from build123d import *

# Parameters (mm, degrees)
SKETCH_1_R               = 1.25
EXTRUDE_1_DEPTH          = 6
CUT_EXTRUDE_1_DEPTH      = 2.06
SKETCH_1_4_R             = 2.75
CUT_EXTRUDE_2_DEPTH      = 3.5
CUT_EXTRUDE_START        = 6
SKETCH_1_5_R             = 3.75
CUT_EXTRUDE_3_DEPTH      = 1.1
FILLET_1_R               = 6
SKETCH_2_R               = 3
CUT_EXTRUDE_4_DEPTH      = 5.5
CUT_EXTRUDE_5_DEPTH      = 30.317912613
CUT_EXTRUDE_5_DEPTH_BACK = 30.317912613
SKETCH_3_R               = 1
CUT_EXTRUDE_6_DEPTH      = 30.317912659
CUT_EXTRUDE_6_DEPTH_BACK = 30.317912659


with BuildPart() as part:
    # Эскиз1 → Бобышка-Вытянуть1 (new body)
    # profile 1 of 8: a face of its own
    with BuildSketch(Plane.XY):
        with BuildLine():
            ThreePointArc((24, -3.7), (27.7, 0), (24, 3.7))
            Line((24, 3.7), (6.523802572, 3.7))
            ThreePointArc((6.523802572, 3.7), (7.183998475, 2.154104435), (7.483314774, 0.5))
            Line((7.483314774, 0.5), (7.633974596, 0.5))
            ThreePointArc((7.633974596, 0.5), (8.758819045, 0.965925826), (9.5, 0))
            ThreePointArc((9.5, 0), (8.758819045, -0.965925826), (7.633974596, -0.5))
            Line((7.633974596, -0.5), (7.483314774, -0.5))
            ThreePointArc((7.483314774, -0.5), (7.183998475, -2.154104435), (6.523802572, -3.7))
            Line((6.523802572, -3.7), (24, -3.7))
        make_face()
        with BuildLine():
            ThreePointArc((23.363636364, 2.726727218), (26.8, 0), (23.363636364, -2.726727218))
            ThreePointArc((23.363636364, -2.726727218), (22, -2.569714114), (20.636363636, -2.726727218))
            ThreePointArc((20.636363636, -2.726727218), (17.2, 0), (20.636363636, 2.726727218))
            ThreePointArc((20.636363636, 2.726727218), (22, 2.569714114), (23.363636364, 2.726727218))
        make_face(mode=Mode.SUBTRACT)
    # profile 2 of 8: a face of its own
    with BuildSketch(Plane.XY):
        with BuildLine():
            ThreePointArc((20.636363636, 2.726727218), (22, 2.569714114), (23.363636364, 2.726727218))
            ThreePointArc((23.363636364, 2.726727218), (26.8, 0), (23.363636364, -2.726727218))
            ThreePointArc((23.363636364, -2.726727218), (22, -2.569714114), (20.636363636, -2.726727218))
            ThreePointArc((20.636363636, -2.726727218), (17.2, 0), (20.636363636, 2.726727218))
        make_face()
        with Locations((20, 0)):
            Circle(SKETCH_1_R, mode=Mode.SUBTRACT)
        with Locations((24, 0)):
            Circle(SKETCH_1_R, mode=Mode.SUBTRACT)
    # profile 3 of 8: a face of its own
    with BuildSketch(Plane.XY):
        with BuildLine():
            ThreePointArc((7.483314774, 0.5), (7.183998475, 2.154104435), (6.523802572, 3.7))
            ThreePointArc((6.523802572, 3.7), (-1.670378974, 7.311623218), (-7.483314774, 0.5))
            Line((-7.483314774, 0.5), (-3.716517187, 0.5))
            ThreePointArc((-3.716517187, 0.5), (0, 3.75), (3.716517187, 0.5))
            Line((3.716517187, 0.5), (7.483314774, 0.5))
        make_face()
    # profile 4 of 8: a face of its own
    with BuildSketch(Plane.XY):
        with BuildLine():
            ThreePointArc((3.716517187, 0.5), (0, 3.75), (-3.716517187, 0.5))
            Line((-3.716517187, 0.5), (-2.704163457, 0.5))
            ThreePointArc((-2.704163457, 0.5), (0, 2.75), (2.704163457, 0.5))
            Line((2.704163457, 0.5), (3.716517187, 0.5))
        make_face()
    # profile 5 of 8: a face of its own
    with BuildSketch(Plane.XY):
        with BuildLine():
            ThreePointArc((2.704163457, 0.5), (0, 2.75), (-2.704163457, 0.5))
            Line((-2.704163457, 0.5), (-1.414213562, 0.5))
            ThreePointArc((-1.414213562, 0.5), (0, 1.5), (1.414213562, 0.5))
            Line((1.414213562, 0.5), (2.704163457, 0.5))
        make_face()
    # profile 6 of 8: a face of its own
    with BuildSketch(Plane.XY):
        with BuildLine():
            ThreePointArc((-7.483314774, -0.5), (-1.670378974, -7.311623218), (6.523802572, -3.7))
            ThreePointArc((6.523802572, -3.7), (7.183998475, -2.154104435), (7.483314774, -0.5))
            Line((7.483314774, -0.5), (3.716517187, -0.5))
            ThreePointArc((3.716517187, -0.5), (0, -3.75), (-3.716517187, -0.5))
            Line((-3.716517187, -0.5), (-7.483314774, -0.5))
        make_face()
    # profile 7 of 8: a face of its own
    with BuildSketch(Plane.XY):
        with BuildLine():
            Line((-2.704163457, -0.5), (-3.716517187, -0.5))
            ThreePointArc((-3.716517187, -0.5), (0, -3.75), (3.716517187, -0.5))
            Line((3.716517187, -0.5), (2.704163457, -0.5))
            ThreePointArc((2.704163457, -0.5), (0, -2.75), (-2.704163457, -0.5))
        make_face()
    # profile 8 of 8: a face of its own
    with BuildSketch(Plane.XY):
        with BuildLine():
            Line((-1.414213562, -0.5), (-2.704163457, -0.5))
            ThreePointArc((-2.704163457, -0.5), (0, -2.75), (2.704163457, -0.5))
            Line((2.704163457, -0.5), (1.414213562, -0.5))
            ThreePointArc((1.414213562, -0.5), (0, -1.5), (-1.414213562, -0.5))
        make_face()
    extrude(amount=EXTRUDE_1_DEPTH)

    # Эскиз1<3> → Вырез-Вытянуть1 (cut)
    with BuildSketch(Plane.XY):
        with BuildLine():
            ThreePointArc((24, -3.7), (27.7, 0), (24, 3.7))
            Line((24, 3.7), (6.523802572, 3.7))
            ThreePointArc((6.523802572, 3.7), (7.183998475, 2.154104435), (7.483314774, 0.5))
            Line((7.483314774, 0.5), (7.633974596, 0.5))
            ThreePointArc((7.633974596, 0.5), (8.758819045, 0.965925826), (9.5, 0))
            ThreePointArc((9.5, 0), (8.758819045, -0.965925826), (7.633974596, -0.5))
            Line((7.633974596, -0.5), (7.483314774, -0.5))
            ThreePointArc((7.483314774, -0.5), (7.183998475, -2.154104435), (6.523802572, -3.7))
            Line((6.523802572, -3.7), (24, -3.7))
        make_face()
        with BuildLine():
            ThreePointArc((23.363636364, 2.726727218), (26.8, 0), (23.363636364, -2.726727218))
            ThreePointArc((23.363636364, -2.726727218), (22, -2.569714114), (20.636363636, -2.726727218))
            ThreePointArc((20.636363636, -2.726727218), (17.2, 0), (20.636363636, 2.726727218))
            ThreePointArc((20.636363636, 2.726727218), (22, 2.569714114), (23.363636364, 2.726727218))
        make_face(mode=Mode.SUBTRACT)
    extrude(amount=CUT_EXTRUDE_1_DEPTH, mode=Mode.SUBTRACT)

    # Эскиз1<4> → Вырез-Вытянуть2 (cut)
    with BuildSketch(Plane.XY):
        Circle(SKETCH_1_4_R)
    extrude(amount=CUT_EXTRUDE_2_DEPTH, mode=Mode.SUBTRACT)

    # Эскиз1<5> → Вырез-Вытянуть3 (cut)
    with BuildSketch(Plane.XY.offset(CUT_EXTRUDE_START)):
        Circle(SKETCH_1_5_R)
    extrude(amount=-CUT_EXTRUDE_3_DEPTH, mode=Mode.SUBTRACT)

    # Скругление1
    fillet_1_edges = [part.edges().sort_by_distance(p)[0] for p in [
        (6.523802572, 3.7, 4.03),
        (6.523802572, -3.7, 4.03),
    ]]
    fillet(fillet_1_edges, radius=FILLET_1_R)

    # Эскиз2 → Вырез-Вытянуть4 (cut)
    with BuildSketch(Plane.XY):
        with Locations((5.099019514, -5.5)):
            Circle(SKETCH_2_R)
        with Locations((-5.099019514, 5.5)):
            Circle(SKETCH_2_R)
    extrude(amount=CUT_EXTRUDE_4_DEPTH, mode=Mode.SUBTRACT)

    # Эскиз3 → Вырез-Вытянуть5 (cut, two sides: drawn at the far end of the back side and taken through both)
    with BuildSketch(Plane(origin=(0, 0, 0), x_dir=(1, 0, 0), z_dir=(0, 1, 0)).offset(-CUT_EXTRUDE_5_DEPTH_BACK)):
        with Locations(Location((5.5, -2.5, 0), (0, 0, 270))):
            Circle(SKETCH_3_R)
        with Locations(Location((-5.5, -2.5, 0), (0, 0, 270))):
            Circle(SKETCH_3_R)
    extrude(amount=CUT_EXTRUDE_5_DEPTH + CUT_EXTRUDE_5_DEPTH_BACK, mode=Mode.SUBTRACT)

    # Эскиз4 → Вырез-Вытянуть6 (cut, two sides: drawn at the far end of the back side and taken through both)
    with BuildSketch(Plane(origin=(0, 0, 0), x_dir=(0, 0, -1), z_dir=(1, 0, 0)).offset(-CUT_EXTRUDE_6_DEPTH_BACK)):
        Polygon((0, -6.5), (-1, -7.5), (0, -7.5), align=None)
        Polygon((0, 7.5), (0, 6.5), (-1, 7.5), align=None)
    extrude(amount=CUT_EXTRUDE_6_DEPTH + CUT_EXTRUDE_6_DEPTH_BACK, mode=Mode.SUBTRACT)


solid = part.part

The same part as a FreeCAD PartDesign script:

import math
import FreeCAD as App
import Part
import Sketcher


def edges_at(feature, points):
    """Names of the edges that pass closest to the given points."""
    edges = feature.Shape.Edges
    near = lambda p: min(range(len(edges)), key=lambda i: edges[i].distToShape(Part.Vertex(*p))[0])
    return sorted({f"Edge{near(p) + 1}" for p in points})


def add_polygon(sketch, points):
    """Adds a closed chain of lines whose ends are joined by coincident constraints."""
    first, n = sketch.GeometryCount, len(points)
    for a, b in zip(points, points[1:] + points[:1]):
        sketch.addGeometry(Part.LineSegment(App.Vector(*a, 0), App.Vector(*b, 0)), False)
    for i in range(n):
        sketch.addConstraint(Sketcher.Constraint("Coincident", first + i, 2, first + (i + 1) % n, 1))

doc = App.newDocument("Part")
body = doc.addObject("PartDesign::Body", "Body")

# Sketch on XY plane
sketch1 = doc.addObject("Sketcher::SketchObject", "Sketch")
body.addObject(sketch1)
sketch1.AttachmentSupport = (doc.XY_Plane, [""])
sketch1.MapMode = "FlatFace"
sketch1.addGeometry([
    Part.ArcOfCircle(Part.Circle(App.Vector(24, 0, 0), App.Vector(0, 0, 1), 3.7), math.radians(-90), math.radians(90)),  # 0
    Part.LineSegment(App.Vector(24, 3.7, 0), App.Vector(6.5, 3.7, 0)),  # 1
    Part.ArcOfCircle(Part.Circle(App.Vector(0, 0, 0), App.Vector(0, 0, 1), 7.5), math.radians(30), math.radians(176)),  # 2
    Part.LineSegment(App.Vector(-7.5, 0.5, 0), App.Vector(-1.4, 0.5, 0)),  # 3
    Part.ArcOfCircle(Part.Circle(App.Vector(0, 0, 0), App.Vector(0, 0, 1), 1.5), math.radians(19), math.radians(161)),  # 4
    Part.LineSegment(App.Vector(1.4, 0.5, 0), App.Vector(7.6, 0.5, 0)),  # 5
    Part.ArcOfCircle(Part.Circle(App.Vector(8.5, 0, 0), App.Vector(0, 0, 1), 1), math.radians(0), math.radians(150)),  # 6
    Part.ArcOfCircle(Part.Circle(App.Vector(8.5, 0, 0), App.Vector(0, 0, 1), 1), math.radians(-150), math.radians(0)),  # 7
    Part.LineSegment(App.Vector(7.6, -0.5, 0), App.Vector(1.4, -0.5, 0)),  # 8
    Part.ArcOfCircle(Part.Circle(App.Vector(0, 0, 0), App.Vector(0, 0, 1), 1.5), math.radians(-161), math.radians(-19)),  # 9
    Part.LineSegment(App.Vector(-1.4, -0.5, 0), App.Vector(-7.5, -0.5, 0)),  # 10
    Part.ArcOfCircle(Part.Circle(App.Vector(0, 0, 0), App.Vector(0, 0, 1), 7.5), math.radians(-176), math.radians(-30)),  # 11
    Part.LineSegment(App.Vector(6.5, -3.7, 0), App.Vector(24, -3.7, 0)),  # 12
    Part.Circle(App.Vector(20, 0, 0), App.Vector(0, 0, 1), 1.2),  # 13
    Part.Circle(App.Vector(24, 0, 0), App.Vector(0, 0, 1), 1.2),  # 14
], False)
sketch1.addConstraint([
    Sketcher.Constraint("Tangent", 0, 2, 1, 1),
    Sketcher.Constraint("Coincident", 1, 2, 2, 1),
    Sketcher.Constraint("Coincident", 2, 2, 3, 1),
    Sketcher.Constraint("Coincident", 3, 2, 4, 2),
    Sketcher.Constraint("Coincident", 4, 1, 5, 1),
    Sketcher.Constraint("Coincident", 5, 2, 6, 2),
    Sketcher.Constraint("Tangent", 6, 1, 7, 2),
    Sketcher.Constraint("Coincident", 7, 1, 8, 1),
    Sketcher.Constraint("Coincident", 8, 2, 9, 2),
    Sketcher.Constraint("Coincident", 9, 1, 10, 1),
    Sketcher.Constraint("Coincident", 10, 2, 11, 1),
    Sketcher.Constraint("Coincident", 11, 2, 12, 1),
    Sketcher.Constraint("Tangent", 12, 2, 0, 1),
    Sketcher.Constraint("Horizontal", 1),
    Sketcher.Constraint("Horizontal", 3),
    Sketcher.Constraint("Horizontal", 5),
    Sketcher.Constraint("Horizontal", 8),
    Sketcher.Constraint("Horizontal", 10),
    Sketcher.Constraint("Horizontal", 12),
    Sketcher.Constraint("Coincident", 2, 3, -1, 1),
    Sketcher.Constraint("Coincident", 4, 3, -1, 1),
    Sketcher.Constraint("Coincident", 9, 3, -1, 1),
    Sketcher.Constraint("Coincident", 11, 3, -1, 1),
    Sketcher.Constraint("Coincident", 14, 3, 0, 3),
    Sketcher.Constraint("Equal", 6, 7),
    Sketcher.Constraint("Equal", 4, 9),
    Sketcher.Constraint("Equal", 2, 11),
    Sketcher.Constraint("Equal", 13, 14),
    Sketcher.Constraint("Symmetric", 5, 2, 7, 1, -1),
    Sketcher.Constraint("PointOnObject", 0, 3, -1),
    Sketcher.Constraint("PointOnObject", 13, 3, -1),
    Sketcher.Constraint("PointOnObject", 6, 1, -1),
    Sketcher.Constraint("Horizontal", 3, 2, 4, 1),
    Sketcher.Constraint("Horizontal", 8, 2, 9, 1),
    Sketcher.Constraint("Radius", 6, 1.0),
    Sketcher.Constraint("Diameter", 13, 2.5),
    Sketcher.Constraint("Radius", 0, 3.7),
    Sketcher.Constraint("Radius", 2, 7.5),
    Sketcher.Constraint("Radius", 4, 1.5),
    Sketcher.Constraint("DistanceX", -1, 1, 0, 3, 24.0),
    Sketcher.Constraint("DistanceX", -1, 1, 13, 3, 20.0),
    Sketcher.Constraint("DistanceY", 7, 1, 5, 2, 1.0),
    Sketcher.Constraint("DistanceX", -1, 1, 6, 3, 8.5),
])
pad1 = doc.addObject("PartDesign::Pad", "Pad")
body.addObject(pad1)
pad1.Profile = sketch1
pad1.Length = 6

# Sketch on XY plane
sketch2 = doc.addObject("Sketcher::SketchObject", "Sketch001")
body.addObject(sketch2)
sketch2.AttachmentSupport = (doc.XY_Plane, [""])
sketch2.MapMode = "FlatFace"
sketch2.addGeometry([
    Part.ArcOfCircle(Part.Circle(App.Vector(24, 0, 0), App.Vector(0, 0, 1), 3.7), math.radians(-90), math.radians(90)),  # 0
    Part.LineSegment(App.Vector(24, 3.7, 0), App.Vector(6.52, 3.7, 0)),  # 1
    Part.ArcOfCircle(Part.Circle(App.Vector(0, 0, 0), App.Vector(0, 0, 1), 7.5), math.radians(4), math.radians(30)),  # 2
    Part.LineSegment(App.Vector(7.48, 0.5, 0), App.Vector(7.63, 0.5, 0)),  # 3
    Part.ArcOfCircle(Part.Circle(App.Vector(8.5, 0, 0), App.Vector(0, 0, 1), 1), math.radians(0), math.radians(150)),  # 4
    Part.ArcOfCircle(Part.Circle(App.Vector(8.5, 0, 0), App.Vector(0, 0, 1), 1), math.radians(-150), math.radians(0)),  # 5
    Part.LineSegment(App.Vector(7.63, -0.5, 0), App.Vector(7.48, -0.5, 0)),  # 6
    Part.ArcOfCircle(Part.Circle(App.Vector(0, 0, 0), App.Vector(0, 0, 1), 7.5), math.radians(-30), math.radians(-4)),  # 7
    Part.LineSegment(App.Vector(6.52, -3.7, 0), App.Vector(24, -3.7, 0)),  # 8
    Part.ArcOfCircle(Part.Circle(App.Vector(22, 8.57, 0), App.Vector(0, 0, 1), 6), math.radians(-103), math.radians(-77)),  # 9
    Part.ArcOfCircle(Part.Circle(App.Vector(24, 0, 0), App.Vector(0, 0, 1), 2.8), math.radians(-103), math.radians(103)),  # 10
    Part.ArcOfCircle(Part.Circle(App.Vector(22, -8.57, 0), App.Vector(0, 0, 1), 6), math.radians(77), math.radians(103)),  # 11
    Part.ArcOfCircle(Part.Circle(App.Vector(20, 0, 0), App.Vector(0, 0, 1), 2.8), math.radians(77), math.radians(283)),  # 12
], False)
sketch2.addConstraint([
    Sketcher.Constraint("Tangent", 0, 2, 1, 1),
    Sketcher.Constraint("Coincident", 1, 2, 2, 2),
    Sketcher.Constraint("Coincident", 2, 1, 3, 1),
    Sketcher.Constraint("Coincident", 3, 2, 4, 2),
    Sketcher.Constraint("Tangent", 4, 1, 5, 2),
    Sketcher.Constraint("Coincident", 5, 1, 6, 1),
    Sketcher.Constraint("Coincident", 6, 2, 7, 2),
    Sketcher.Constraint("Coincident", 7, 1, 8, 1),
    Sketcher.Constraint("Tangent", 8, 2, 0, 1),
    Sketcher.Constraint("Tangent", 9, 2, 10, 2),
    Sketcher.Constraint("Tangent", 10, 1, 11, 1),
    Sketcher.Constraint("Tangent", 11, 2, 12, 2),
    Sketcher.Constraint("Tangent", 12, 1, 9, 1),
    Sketcher.Constraint("Horizontal", 1),
    Sketcher.Constraint("Horizontal", 3),
    Sketcher.Constraint("Horizontal", 6),
    Sketcher.Constraint("Horizontal", 8),
    Sketcher.Constraint("Coincident", 2, 3, -1, 1),
    Sketcher.Constraint("Coincident", 7, 3, -1, 1),
    Sketcher.Constraint("Coincident", 10, 3, 0, 3),
    Sketcher.Constraint("Equal", 4, 5),
    Sketcher.Constraint("Equal", 2, 7),
    Sketcher.Constraint("Equal", 9, 11),
    Sketcher.Constraint("Equal", 10, 12),
    Sketcher.Constraint("Symmetric", 9, 3, 11, 3, -1),
    Sketcher.Constraint("Symmetric", 3, 2, 5, 1, -1),
    Sketcher.Constraint("PointOnObject", 4, 1, -1),
    Sketcher.Constraint("Radius", 4, 1.0),
    Sketcher.Constraint("Radius", 9, 6.0),
    Sketcher.Constraint("Radius", 0, 3.7),
    Sketcher.Constraint("Radius", 2, 7.5),
    Sketcher.Constraint("Radius", 10, 2.8),
    Sketcher.Constraint("DistanceX", -1, 1, 0, 3, 24.0),
    Sketcher.Constraint("DistanceX", -1, 1, 9, 3, 22.0),
    Sketcher.Constraint("DistanceY", 5, 1, 3, 2, 1.0),
    Sketcher.Constraint("DistanceX", -1, 1, 4, 3, 8.5),
])
pocket1 = doc.addObject("PartDesign::Pocket", "Pocket")
body.addObject(pocket1)
pocket1.Profile = sketch2
pocket1.Length = 2.06
pocket1.Reversed = True

# Sketch on XY plane
sketch3 = doc.addObject("Sketcher::SketchObject", "Sketch002")
body.addObject(sketch3)
sketch3.AttachmentSupport = (doc.XY_Plane, [""])
sketch3.MapMode = "FlatFace"
sketch3.addGeometry(Part.Circle(App.Vector(0, 0, 0), App.Vector(0, 0, 1), 2.8), False)
sketch3.addConstraint([
    Sketcher.Constraint("Coincident", 0, 3, -1, 1),
    Sketcher.Constraint("Diameter", 0, 5.5),
])
pocket2 = doc.addObject("PartDesign::Pocket", "Pocket001")
body.addObject(pocket2)
pocket2.Profile = sketch3
pocket2.Length = 3.5
pocket2.Reversed = True

# Sketch on XY plane
sketch4 = doc.addObject("Sketcher::SketchObject", "Sketch003")
body.addObject(sketch4)
sketch4.AttachmentSupport = (doc.XY_Plane, [""])
sketch4.MapMode = "FlatFace"
sketch4.AttachmentOffset = App.Placement(App.Vector(0, 0, 6), App.Rotation())
sketch4.addGeometry(Part.Circle(App.Vector(0, 0, 0), App.Vector(0, 0, 1), 3.8), False)
sketch4.addConstraint([
    Sketcher.Constraint("Coincident", 0, 3, -1, 1),
    Sketcher.Constraint("Diameter", 0, 7.5),
])
pocket3 = doc.addObject("PartDesign::Pocket", "Pocket002")
body.addObject(pocket3)
pocket3.Profile = sketch4
pocket3.Length = 1.1
doc.recompute()

fillet = doc.addObject("PartDesign::Fillet", "Fillet")
body.addObject(fillet)
fillet.Base = (pocket3, edges_at(pocket3, [(6.524, 3.7, 4.03), (6.524, -3.7, 4.03)]))
fillet.Radius = 6

# Sketch on XY plane
sketch5 = doc.addObject("Sketcher::SketchObject", "Sketch004")
body.addObject(sketch5)
sketch5.AttachmentSupport = (doc.XY_Plane, [""])
sketch5.MapMode = "FlatFace"
sketch5.addGeometry([
    Part.Circle(App.Vector(5.1, -5.5, 0), App.Vector(0, 0, 1), 3),
    Part.Circle(App.Vector(-5.1, 5.5, 0), App.Vector(0, 0, 1), 3),
], False)
sketch5.addConstraint([
    Sketcher.Constraint("Equal", 0, 1),
    Sketcher.Constraint("Symmetric", 0, 3, 1, 3, -1, 1),
    Sketcher.Constraint("Diameter", 0, 6.0),
    Sketcher.Constraint("DistanceY", 0, 3, 1, 3, 11.0),
    Sketcher.Constraint("DistanceX", -1, 1, 0, 3, 5.09902),
])
pocket4 = doc.addObject("PartDesign::Pocket", "Pocket003")
body.addObject(pocket4)
pocket4.Profile = sketch5
pocket4.Length = 5.5
pocket4.Reversed = True

# Sketch on XZ plane
sketch6 = doc.addObject("Sketcher::SketchObject", "Sketch005")
body.addObject(sketch6)
sketch6.AttachmentSupport = (doc.XZ_Plane, [""])
sketch6.MapMode = "FlatFace"
sketch6.addGeometry([
    Part.Circle(App.Vector(5.5, 2.5, 0), App.Vector(0, 0, 1), 1),
    Part.Circle(App.Vector(-5.5, 2.5, 0), App.Vector(0, 0, 1), 1),
], False)
sketch6.addConstraint([
    Sketcher.Constraint("Equal", 0, 1),
    Sketcher.Constraint("Symmetric", 0, 3, 1, 3, -2),
    Sketcher.Constraint("Diameter", 0, 2.0),
    Sketcher.Constraint("DistanceX", 1, 3, 0, 3, 11.0),
    Sketcher.Constraint("DistanceY", -1, 1, 0, 3, 2.5),
])
pocket5 = doc.addObject("PartDesign::Pocket", "Pocket004")
body.addObject(pocket5)
pocket5.Profile = sketch6
pocket5.Type = "ThroughAll"
pocket5.Midplane = True

# Sketch on YZ plane
sketch7 = doc.addObject("Sketcher::SketchObject", "Sketch006")
body.addObject(sketch7)
sketch7.AttachmentSupport = (doc.YZ_Plane, [""])
sketch7.MapMode = "FlatFace"
add_polygon(sketch7, [(-6.5, 0), (-7.5, 1), (-7.5, 0)])  # lines 0-2
add_polygon(sketch7, [(6.5, 0), (7.5, 0), (7.5, 1)])  # lines 3-5
sketch7.addConstraint([
    Sketcher.Constraint("Vertical", 1),
    Sketcher.Constraint("Horizontal", 2),
    Sketcher.Constraint("Horizontal", 3),
    Sketcher.Constraint("Vertical", 4),
    Sketcher.Constraint("Symmetric", 1, 2, 3, 2, -1, 1),
    Sketcher.Constraint("Symmetric", 2, 2, 5, 2, -2),
    Sketcher.Constraint("Perpendicular", 0, 5),
    Sketcher.Constraint("Horizontal", 0, 2, 4, 2),
    Sketcher.Constraint("DistanceX", 2, 1, 2, 2, 1.0),
    Sketcher.Constraint("DistanceX", 2, 2, 3, 2, 14.0),
])
pocket6 = doc.addObject("PartDesign::Pocket", "Pocket005")
body.addObject(pocket6)
pocket6.Profile = sketch7
pocket6.Type = "ThroughAll"
pocket6.Midplane = True

doc.recompute()
